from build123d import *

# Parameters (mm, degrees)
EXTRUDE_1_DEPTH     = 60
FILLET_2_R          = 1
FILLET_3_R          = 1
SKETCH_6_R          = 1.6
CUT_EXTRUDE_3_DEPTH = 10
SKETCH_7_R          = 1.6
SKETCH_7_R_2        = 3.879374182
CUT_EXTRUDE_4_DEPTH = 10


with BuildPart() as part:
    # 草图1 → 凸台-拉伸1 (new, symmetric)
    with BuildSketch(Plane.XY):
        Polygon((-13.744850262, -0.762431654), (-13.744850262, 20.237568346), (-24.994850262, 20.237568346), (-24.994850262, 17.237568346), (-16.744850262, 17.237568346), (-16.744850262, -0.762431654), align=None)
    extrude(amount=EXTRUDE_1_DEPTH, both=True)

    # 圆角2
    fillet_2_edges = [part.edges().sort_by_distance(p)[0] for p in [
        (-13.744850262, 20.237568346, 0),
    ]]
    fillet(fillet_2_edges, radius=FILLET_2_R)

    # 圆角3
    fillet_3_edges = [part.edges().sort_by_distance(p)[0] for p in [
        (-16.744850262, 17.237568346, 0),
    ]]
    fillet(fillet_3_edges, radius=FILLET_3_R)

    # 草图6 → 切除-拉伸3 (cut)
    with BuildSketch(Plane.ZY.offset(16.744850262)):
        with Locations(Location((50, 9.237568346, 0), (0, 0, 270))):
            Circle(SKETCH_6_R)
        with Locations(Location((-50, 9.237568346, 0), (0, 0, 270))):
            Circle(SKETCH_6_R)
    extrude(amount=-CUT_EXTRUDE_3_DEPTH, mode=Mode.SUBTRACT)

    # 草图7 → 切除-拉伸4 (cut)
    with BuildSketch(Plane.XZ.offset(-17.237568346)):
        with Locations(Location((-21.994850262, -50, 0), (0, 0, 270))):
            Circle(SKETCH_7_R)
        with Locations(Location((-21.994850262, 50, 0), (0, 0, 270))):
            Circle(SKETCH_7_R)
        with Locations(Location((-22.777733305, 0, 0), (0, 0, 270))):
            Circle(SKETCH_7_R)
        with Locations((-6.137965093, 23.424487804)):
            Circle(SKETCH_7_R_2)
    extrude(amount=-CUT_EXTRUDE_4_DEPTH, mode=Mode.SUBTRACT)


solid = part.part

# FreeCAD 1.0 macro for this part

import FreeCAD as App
import Part
import Sketcher
from FreeCAD import Vector


def edges_at(feature, points):
    """Names of the edges that pass closest to the given points."""
    edges = feature.Shape.Edges
    near = lambda p: min(range(len(edges)), key=lambda i: edges[i].distToShape(Part.Vertex(*p))[0])
    return sorted({f"Edge{near(p) + 1}" for p in points})


def add_polygon(sketch, points):
    """Adds a closed chain of lines whose ends are joined by coincident constraints."""
    first, n = sketch.GeometryCount, len(points)
    for a, b in zip(points, points[1:] + points[:1]):
        sketch.addGeometry(Part.LineSegment(App.Vector(*a, 0), App.Vector(*b, 0)), False)
    for i in range(n):
        sketch.addConstraint(Sketcher.Constraint("Coincident", first + i, 2, first + (i + 1) % n, 1))

doc = App.newDocument("Part")
body = doc.addObject("PartDesign::Body", "Body")

# Sketch on XY plane
sketch1 = doc.addObject("Sketcher::SketchObject", "Sketch")
body.addObject(sketch1)
sketch1.AttachmentSupport = (doc.XY_Plane, [""])
sketch1.MapMode = "FlatFace"
add_polygon(sketch1, [(-13.7, -0.8), (-13.7, 20.2), (-25, 20.2), (-25, 17.2), (-16.7, 17.2), (-16.7, -0.8)])  # lines 0-5
sketch1.addConstraint([
    Sketcher.Constraint("Vertical", 0),
    Sketcher.Constraint("Horizontal", 1),
    Sketcher.Constraint("Vertical", 2),
    Sketcher.Constraint("Horizontal", 3),
    Sketcher.Constraint("Vertical", 4),
    Sketcher.Constraint("Horizontal", 5),
    Sketcher.Constraint("Equal", 5, 2),
    Sketcher.Constraint("DistanceX", 5, 1, 5, 2, 3.0),
    Sketcher.Constraint("DistanceY", 0, 1, 0, 2, 21.0),
    Sketcher.Constraint("DistanceX", 1, 2, 1, 1, 11.25),
    Sketcher.Constraint("DistanceX", 0, 2, -1, 1, 13.74485),
    Sketcher.Constraint("DistanceY", -1, 1, 0, 2, 20.237568),
])
pad1 = doc.addObject("PartDesign::Pad", "Pad")
body.addObject(pad1)
pad1.Profile = sketch1
pad1.Length = 120
pad1.Midplane = True
doc.recompute()

fillet = doc.addObject("PartDesign::Fillet", "Fillet")
body.addObject(fillet)
fillet.Base = (pad1, edges_at(pad1, [(-13.745, 20.238, 0)]))
fillet.Radius = 1
doc.recompute()

fillet2 = doc.addObject("PartDesign::Fillet", "Fillet001")
body.addObject(fillet2)
fillet2.Base = (fillet, edges_at(fillet, [(-16.745, 17.238, 0)]))
fillet2.Radius = 1

# Sketch on YZ plane
sketch2 = doc.addObject("Sketcher::SketchObject", "Sketch001")
body.addObject(sketch2)
sketch2.AttachmentSupport = (doc.YZ_Plane, [""])
sketch2.MapMode = "FlatFace"
sketch2.AttachmentOffset = App.Placement(Vector(0, 0, -16.74485), App.Rotation())
sketch2.addGeometry([
    Part.Circle(Vector(9.2, 50, 0), Vector(0, 0, 1), 1.6),
    Part.Circle(Vector(9.2, -50, 0), Vector(0, 0, 1), 1.6),
], False)
sketch2.addConstraint([
    Sketcher.Constraint("Equal", 0, 1),
    Sketcher.Constraint("Symmetric", 0, 3, 1, 3, -1),
    Sketcher.Constraint("Diameter", 0, 3.2),
    Sketcher.Constraint("DistanceY", -1, 1, 0, 3, 50.0),
    Sketcher.Constraint("DistanceX", -1, 1, 0, 3, 9.237568),
])
pocket1 = doc.addObject("PartDesign::Pocket", "Pocket")
body.addObject(pocket1)
pocket1.Profile = sketch2
pocket1.Length = 10
pocket1.Reversed = True

# Sketch on XZ plane
sketch3 = doc.addObject("Sketcher::SketchObject", "Sketch002")
body.addObject(sketch3)
sketch3.AttachmentSupport = (doc.XZ_Plane, [""])
sketch3.MapMode = "FlatFace"
sketch3.AttachmentOffset = App.Placement(Vector(0, 0, -17.237568), App.Rotation())
sketch3.addGeometry([
    Part.Circle(Vector(-22, -50, 0), Vector(0, 0, 1), 1.6),
    Part.Circle(Vector(-22, 50, 0), Vector(0, 0, 1), 1.6),
    Part.Circle(Vector(-22.8, 0, 0), Vector(0, 0, 1), 1.6),
    Part.Circle(Vector(-6.1, 23.4, 0), Vector(0, 0, 1), 3.9),
], False)
sketch3.addConstraint([
    Sketcher.Constraint("Equal", 0, 1),
    Sketcher.Constraint("Equal", 1, 2),
    Sketcher.Constraint("Symmetric", 0, 3, 1, 3, -1),
    Sketcher.Constraint("PointOnObject", 2, 3, -1),
    Sketcher.Constraint("Diameter", 0, 3.2),
    Sketcher.Constraint("DistanceY", 0, 3, -1, 1, 50.0),
    Sketcher.Constraint("Diameter", 3, 7.758748),
    Sketcher.Constraint("DistanceX", 0, 3, -1, 1, 21.99485),
    Sketcher.Constraint("DistanceX", 2, 3, 3, 3, 16.639768),
    Sketcher.Constraint("DistanceX", 2, 3, -1, 1, 22.777733),
    Sketcher.Constraint("DistanceY", -1, 1, 3, 3, 23.424488),
])
pocket2 = doc.addObject("PartDesign::Pocket", "Pocket001")
body.addObject(pocket2)
pocket2.Profile = sketch3
pocket2.Length = 10

doc.recompute()
